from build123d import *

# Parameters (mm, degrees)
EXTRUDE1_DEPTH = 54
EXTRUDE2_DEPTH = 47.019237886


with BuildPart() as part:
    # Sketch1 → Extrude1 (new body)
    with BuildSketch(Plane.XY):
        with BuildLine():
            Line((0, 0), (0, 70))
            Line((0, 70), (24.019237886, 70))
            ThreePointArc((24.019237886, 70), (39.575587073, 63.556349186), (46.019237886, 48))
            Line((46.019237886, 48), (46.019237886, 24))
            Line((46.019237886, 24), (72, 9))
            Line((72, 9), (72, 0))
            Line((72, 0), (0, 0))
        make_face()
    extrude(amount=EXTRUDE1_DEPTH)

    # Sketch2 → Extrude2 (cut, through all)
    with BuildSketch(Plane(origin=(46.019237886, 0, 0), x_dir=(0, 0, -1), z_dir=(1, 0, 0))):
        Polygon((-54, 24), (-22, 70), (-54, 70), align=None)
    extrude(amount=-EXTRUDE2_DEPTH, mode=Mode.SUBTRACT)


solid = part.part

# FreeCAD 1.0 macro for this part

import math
import FreeCAD as App
import Part
import Sketcher
Q = App.Units.Quantity

doc = App.newDocument("Part")
body = doc.addObject("PartDesign::Body", "Body")

sketch1 = body.newObject("Sketcher::SketchObject", "Sketch")
sketch1.AttachmentSupport = (doc.getObject("XY_Plane"), [""])
sketch1.MapMode = "FlatFace"
sketch1.addGeometry(Part.LineSegment(App.Vector(0, 70, 0), App.Vector(0, 0, 0)), False)
sketch1.addGeometry(Part.LineSegment(App.Vector(0, 0, 0), App.Vector(72, 0, 0)), False)
sketch1.addGeometry(Part.LineSegment(App.Vector(72, 0, 0), App.Vector(72, 9, 0)), False)
sketch1.addGeometry(Part.LineSegment(App.Vector(72, 9, 0), App.Vector(46, 24, 0)), False)
sketch1.addGeometry(Part.LineSegment(App.Vector(46, 24, 0), App.Vector(46, 48, 0)), False)
sketch1.addGeometry(Part.ArcOfCircle(Part.Circle(App.Vector(24, 48, 0), App.Vector(0, 0, 1), 22), math.radians(0), math.radians(90)), False)
sketch1.addGeometry(Part.LineSegment(App.Vector(24, 70, 0), App.Vector(0, 70, 0)), False)
sketch1.addConstraint(Sketcher.Constraint("Coincident", 0, 2, 1, 1))
sketch1.addConstraint(Sketcher.Constraint("Coincident", 1, 2, 2, 1))
sketch1.addConstraint(Sketcher.Constraint("Coincident", 2, 2, 3, 1))
sketch1.addConstraint(Sketcher.Constraint("Coincident", 3, 2, 4, 1))
sketch1.addConstraint(Sketcher.Constraint("Tangent", 4, 2, 5, 1))
sketch1.addConstraint(Sketcher.Constraint("Tangent", 5, 2, 6, 1))
sketch1.addConstraint(Sketcher.Constraint("Coincident", 6, 2, 0, 1))
sketch1.addConstraint(Sketcher.Constraint("Vertical", 0))
sketch1.addConstraint(Sketcher.Constraint("Horizontal", 1))
sketch1.addConstraint(Sketcher.Constraint("Vertical", 2))
sketch1.addConstraint(Sketcher.Constraint("Vertical", 4))
sketch1.addConstraint(Sketcher.Constraint("Horizontal", 6))
sketch1.addConstraint(Sketcher.Constraint("Coincident", 0, 2, -1, 1))
sketch1.addConstraint(Sketcher.Constraint("Radius", 5, Q("22 mm")))
sketch1.addConstraint(Sketcher.Constraint("DistanceX", 1, 1, 1, 2, Q("72 mm")))
sketch1.addConstraint(Sketcher.Constraint("DistanceY", 0, 2, 0, 1, Q("70 mm")))
sketch1.addConstraint(Sketcher.Constraint("DistanceY", 2, 1, 2, 2, Q("9 mm")))
sketch1.addConstraint(Sketcher.Constraint("DistanceY", 4, 1, 4, 2, Q("24 mm")))
sketch1.addConstraint(Sketcher.Constraint("Angle", 3, Q("150 deg")))
pad1 = body.newObject("PartDesign::Pad", "Pad")
pad1.Profile = sketch1
pad1.Length = 54

sketch2 = body.newObject("Sketcher::SketchObject", "Sketch001")
sketch2.AttachmentSupport = (doc.getObject("YZ_Plane"), [""])
sketch2.MapMode = "FlatFace"
sketch2.AttachmentOffset = App.Placement(App.Vector(0, 0, 46.019238), App.Rotation())
sketch2.addGeometry(Part.LineSegment(App.Vector(24, 54, 0), App.Vector(70, 22, 0)), False)
sketch2.addGeometry(Part.LineSegment(App.Vector(70, 22, 0), App.Vector(70, 54, 0)), False)
sketch2.addGeometry(Part.LineSegment(App.Vector(70, 54, 0), App.Vector(24, 54, 0)), False)
sketch2.addConstraint(Sketcher.Constraint("Coincident", 0, 2, 1, 1))
sketch2.addConstraint(Sketcher.Constraint("Coincident", 1, 2, 2, 1))
sketch2.addConstraint(Sketcher.Constraint("Coincident", 2, 2, 0, 1))
sketch2.addConstraint(Sketcher.Constraint("Vertical", 1))
sketch2.addConstraint(Sketcher.Constraint("Horizontal", 2))
sketch2.addConstraint(Sketcher.Constraint("DistanceX", 2, 2, 2, 1, Q("46 mm")))
sketch2.addConstraint(Sketcher.Constraint("DistanceY", 1, 1, 1, 2, Q("32 mm")))
sketch2.addConstraint(Sketcher.Constraint("DistanceX", -1, 1, 0, 2, Q("70 mm")))
sketch2.addConstraint(Sketcher.Constraint("DistanceY", -1, 1, 0, 2, Q("22 mm")))
pocket1 = body.newObject("PartDesign::Pocket", "Pocket")
pocket1.Profile = sketch2
pocket1.Type = "ThroughAll"

doc.recompute()
